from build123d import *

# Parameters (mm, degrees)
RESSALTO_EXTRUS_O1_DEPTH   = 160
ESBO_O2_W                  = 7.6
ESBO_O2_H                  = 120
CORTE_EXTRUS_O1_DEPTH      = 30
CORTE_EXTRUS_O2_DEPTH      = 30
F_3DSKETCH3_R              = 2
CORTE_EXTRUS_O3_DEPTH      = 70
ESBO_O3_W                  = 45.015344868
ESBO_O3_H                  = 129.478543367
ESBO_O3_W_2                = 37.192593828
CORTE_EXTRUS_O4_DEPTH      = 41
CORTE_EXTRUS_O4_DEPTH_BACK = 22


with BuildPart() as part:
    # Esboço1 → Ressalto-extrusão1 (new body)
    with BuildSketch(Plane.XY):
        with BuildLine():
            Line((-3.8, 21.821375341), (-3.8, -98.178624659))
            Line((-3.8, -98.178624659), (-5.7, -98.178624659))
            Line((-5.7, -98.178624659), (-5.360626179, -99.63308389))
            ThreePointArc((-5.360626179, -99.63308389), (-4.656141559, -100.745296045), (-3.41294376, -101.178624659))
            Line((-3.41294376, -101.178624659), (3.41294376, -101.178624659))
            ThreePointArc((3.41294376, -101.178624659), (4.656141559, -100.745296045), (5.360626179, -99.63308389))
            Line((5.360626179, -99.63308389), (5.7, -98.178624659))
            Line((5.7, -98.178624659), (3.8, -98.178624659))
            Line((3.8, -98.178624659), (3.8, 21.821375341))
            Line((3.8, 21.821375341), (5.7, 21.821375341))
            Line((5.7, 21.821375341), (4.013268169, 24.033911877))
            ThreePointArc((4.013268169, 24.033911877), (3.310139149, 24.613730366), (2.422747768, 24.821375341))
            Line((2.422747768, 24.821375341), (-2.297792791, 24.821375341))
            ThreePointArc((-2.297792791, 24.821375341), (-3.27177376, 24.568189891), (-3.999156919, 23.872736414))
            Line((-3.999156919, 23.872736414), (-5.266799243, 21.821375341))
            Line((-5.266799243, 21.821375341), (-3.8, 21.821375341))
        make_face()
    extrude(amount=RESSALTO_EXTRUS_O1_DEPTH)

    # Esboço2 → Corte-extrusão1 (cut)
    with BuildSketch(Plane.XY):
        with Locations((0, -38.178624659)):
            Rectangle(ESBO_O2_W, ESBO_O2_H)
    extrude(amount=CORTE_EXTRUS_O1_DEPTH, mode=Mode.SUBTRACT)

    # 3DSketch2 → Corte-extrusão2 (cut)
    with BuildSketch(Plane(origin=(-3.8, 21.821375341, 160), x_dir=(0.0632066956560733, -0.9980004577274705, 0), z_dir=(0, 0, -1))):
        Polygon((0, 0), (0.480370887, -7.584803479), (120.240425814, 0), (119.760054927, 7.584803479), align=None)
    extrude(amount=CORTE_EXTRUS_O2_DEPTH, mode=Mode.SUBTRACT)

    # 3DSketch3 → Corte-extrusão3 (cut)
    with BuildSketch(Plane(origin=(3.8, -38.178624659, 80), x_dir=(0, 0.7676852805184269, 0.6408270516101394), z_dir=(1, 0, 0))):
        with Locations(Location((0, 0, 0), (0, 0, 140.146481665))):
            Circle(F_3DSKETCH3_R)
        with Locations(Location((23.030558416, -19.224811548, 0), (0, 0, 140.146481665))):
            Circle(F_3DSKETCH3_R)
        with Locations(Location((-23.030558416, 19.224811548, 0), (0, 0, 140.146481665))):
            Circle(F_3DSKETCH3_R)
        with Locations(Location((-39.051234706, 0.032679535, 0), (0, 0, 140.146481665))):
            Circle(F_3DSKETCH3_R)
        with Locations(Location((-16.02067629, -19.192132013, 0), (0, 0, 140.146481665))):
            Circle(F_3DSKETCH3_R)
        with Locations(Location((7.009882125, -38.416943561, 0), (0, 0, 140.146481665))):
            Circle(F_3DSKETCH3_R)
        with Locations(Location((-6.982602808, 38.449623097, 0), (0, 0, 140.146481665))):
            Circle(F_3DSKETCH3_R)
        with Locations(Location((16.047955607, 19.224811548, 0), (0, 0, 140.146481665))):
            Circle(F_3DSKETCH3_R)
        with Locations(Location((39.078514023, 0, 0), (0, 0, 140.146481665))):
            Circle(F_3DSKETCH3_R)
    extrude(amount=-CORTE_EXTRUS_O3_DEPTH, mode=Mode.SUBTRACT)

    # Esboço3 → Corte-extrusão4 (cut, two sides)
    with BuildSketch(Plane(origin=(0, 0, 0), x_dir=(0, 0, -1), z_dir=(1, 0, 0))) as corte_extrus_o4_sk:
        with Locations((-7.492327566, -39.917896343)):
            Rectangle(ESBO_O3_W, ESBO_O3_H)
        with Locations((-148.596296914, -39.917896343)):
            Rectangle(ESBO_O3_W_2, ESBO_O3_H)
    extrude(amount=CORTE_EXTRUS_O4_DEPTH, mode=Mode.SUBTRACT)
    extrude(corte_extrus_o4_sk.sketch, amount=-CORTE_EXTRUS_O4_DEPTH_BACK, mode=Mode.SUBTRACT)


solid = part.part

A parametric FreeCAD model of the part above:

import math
import FreeCAD as App
import Part
import Sketcher
from FreeCAD import Vector


def add_polygon(sketch, points):
    """Adds a closed chain of lines whose ends are joined by coincident constraints."""
    first, n = sketch.GeometryCount, len(points)
    for a, b in zip(points, points[1:] + points[:1]):
        sketch.addGeometry(Part.LineSegment(App.Vector(*a, 0), App.Vector(*b, 0)), False)
    for i in range(n):
        sketch.addConstraint(Sketcher.Constraint("Coincident", first + i, 2, first + (i + 1) % n, 1))

doc = App.newDocument("Part")
params = doc.addObject("Spreadsheet::Sheet", "Params")
for row, (alias, value) in enumerate([
    ("sketch1_radius", "2 mm"),
    ("sketch1_height", "120 mm"),
    ("sketch1_width", "1.9 mm"),
    ("pad1_length", "160 mm"),
    ("sketch2_height", "120 mm"),
    ("sketch2_width", "7.6 mm"),
    ("pocket1_length", "30 mm"),
    ("sketch3_height", "120 mm"),
    ("sketch3_width", "7.6 mm"),
    ("pocket2_length", "30 mm"),
    ("sketch4_diameter", "4 mm"),
    ("pocket3_length", "70 mm"),
], start=1):
    params.set(f"A{row}", alias)
    params.set(f"B{row}", "=" + value)
    params.setAlias(f"B{row}", alias)

body = doc.addObject("PartDesign::Body", "Body")

sketch1 = body.newObject("Sketcher::SketchObject", "Sketch")
sketch1.AttachmentSupport = (doc.getObject("XY_Plane"), [""])
sketch1.MapMode = "FlatFace"
sketch1.addGeometry([
    Part.LineSegment(Vector(-3.8, 21.8, 0), Vector(-3.8, -98.2, 0)),
    Part.LineSegment(Vector(-3.8, -98.2, 0), Vector(-5.7, -98.2, 0)),
    Part.LineSegment(Vector(-5.7, -98.2, 0), Vector(-5.4, -99.6, 0)),
    Part.ArcOfCircle(Part.Circle(Vector(-3.4, -99.2, 0), Vector(0, 0, 1), 2), math.radians(-167), math.radians(-90)),
    Part.LineSegment(Vector(-3.4, -101.2, 0), Vector(3.4, -101.2, 0)),
    Part.ArcOfCircle(Part.Circle(Vector(3.4, -99.2, 0), Vector(0, 0, 1), 2), math.radians(-90), math.radians(-13)),
    Part.LineSegment(Vector(5.4, -99.6, 0), Vector(5.7, -98.2, 0)),
    Part.LineSegment(Vector(5.7, -98.2, 0), Vector(3.8, -98.2, 0)),
    Part.LineSegment(Vector(3.8, -98.2, 0), Vector(3.8, 21.8, 0)),
    Part.LineSegment(Vector(3.8, 21.8, 0), Vector(5.7, 21.8, 0)),
    Part.LineSegment(Vector(5.7, 21.8, 0), Vector(4, 24, 0)),
    Part.ArcOfCircle(Part.Circle(Vector(2.4, 22.8, 0), Vector(0, 0, 1), 2), math.radians(37), math.radians(90)),
    Part.LineSegment(Vector(2.4, 24.8, 0), Vector(-2.3, 24.8, 0)),
    Part.ArcOfCircle(Part.Circle(Vector(-2.3, 22.8, 0), Vector(0, 0, 1), 2), math.radians(90), math.radians(148)),
    Part.LineSegment(Vector(-4, 23.9, 0), Vector(-5.3, 21.8, 0)),
    Part.LineSegment(Vector(-5.3, 21.8, 0), Vector(-3.8, 21.8, 0)),
], False)
sketch1.addConstraint([
    Sketcher.Constraint("Coincident", 0, 2, 1, 1),
    Sketcher.Constraint("Coincident", 1, 2, 2, 1),
    Sketcher.Constraint("Tangent", 2, 2, 3, 1),
    Sketcher.Constraint("Tangent", 3, 2, 4, 1),
    Sketcher.Constraint("Tangent", 4, 2, 5, 1),
    Sketcher.Constraint("Tangent", 5, 2, 6, 1),
    Sketcher.Constraint("Coincident", 6, 2, 7, 1),
    Sketcher.Constraint("Coincident", 7, 2, 8, 1),
    Sketcher.Constraint("Coincident", 8, 2, 9, 1),
    Sketcher.Constraint("Coincident", 9, 2, 10, 1),
    Sketcher.Constraint("Tangent", 10, 2, 11, 1),
    Sketcher.Constraint("Tangent", 11, 2, 12, 1),
    Sketcher.Constraint("Tangent", 12, 2, 13, 1),
    Sketcher.Constraint("Tangent", 13, 2, 14, 1),
    Sketcher.Constraint("Coincident", 14, 2, 15, 1),
    Sketcher.Constraint("Coincident", 15, 2, 0, 1),
    Sketcher.Constraint("Vertical", 0),
    Sketcher.Constraint("Horizontal", 1),
    Sketcher.Constraint("Horizontal", 4),
    Sketcher.Constraint("Horizontal", 7),
    Sketcher.Constraint("Vertical", 8),
    Sketcher.Constraint("Horizontal", 9),
    Sketcher.Constraint("Horizontal", 12),
    Sketcher.Constraint("Horizontal", 15),
    Sketcher.Constraint("Equal", 3, 5),
    Sketcher.Constraint("Equal", 5, 11),
    Sketcher.Constraint("Equal", 11, 13),
    Sketcher.Constraint("Symmetric", 2, 2, 5, 2, -2),
    Sketcher.Constraint("Symmetric", 0, 2, 7, 2, -2),
    Sketcher.Constraint("Horizontal", 9, 2, 14, 2),
    Sketcher.Constraint("Vertical", 6, 2, 9, 2),
    Sketcher.Constraint("Radius", 3, 2.0),
    Sketcher.Constraint("DistanceY", 0, 2, 0, 1, 120.0),
    Sketcher.Constraint("DistanceX", 1, 2, 1, 1, 1.9),
    Sketcher.Constraint("DistanceY", 5, 3, 11, 3, 122.0),
    Sketcher.Constraint("DistanceY", 3, 3, 0, 2, 1.0),
    Sketcher.Constraint("DistanceX", 0, 2, -1, 1, 3.8),
    Sketcher.Constraint("DistanceX", 15, 1, 15, 2, 1.466799),
    Sketcher.Constraint("DistanceX", 12, 2, 12, 1, 4.720541),
    Sketcher.Constraint("Distance", 2, 1.493528),
    Sketcher.Constraint("Distance", 14, 2.411431),
    Sketcher.Constraint("DistanceY", -1, 1, 10, 2, 24.033912),
])
sketch1.setExpression("Constraints[31]", "Params.sketch1_radius")
sketch1.setExpression("Constraints[32]", "Params.sketch1_height")
sketch1.setExpression("Constraints[33]", "Params.sketch1_width")
pad1 = body.newObject("PartDesign::Pad", "Pad")
pad1.Profile = sketch1
pad1.setExpression("Length", "Params.pad1_length")

sketch2 = body.newObject("Sketcher::SketchObject", "Sketch001")
sketch2.AttachmentSupport = (doc.getObject("XY_Plane"), [""])
sketch2.MapMode = "FlatFace"
add_polygon(sketch2, [(-4, 22), (-4, -98), (4, -98), (4, 22)])
sketch2.addConstraint([
    Sketcher.Constraint("Vertical", 0),
    Sketcher.Constraint("Horizontal", 1),
    Sketcher.Constraint("Vertical", 2),
    Sketcher.Constraint("Horizontal", 3),
    Sketcher.Constraint("DistanceY", 0, 2, 0, 1, 120.0),
    Sketcher.Constraint("DistanceX", 1, 1, 1, 2, 7.6),
    Sketcher.Constraint("DistanceX", 0, 2, -1, 1, 3.8),
    Sketcher.Constraint("DistanceY", 0, 2, -1, 1, 98.178625),
])
sketch2.setExpression("Constraints[8]", "Params.sketch2_height")
sketch2.setExpression("Constraints[9]", "Params.sketch2_width")
pocket1 = body.newObject("PartDesign::Pocket", "Pocket")
pocket1.Profile = sketch2
pocket1.setExpression("Length", "Params.pocket1_length")
pocket1.Reversed = True

sketch3 = body.newObject("Sketcher::SketchObject", "Sketch002")
sketch3.AttachmentSupport = (doc.getObject("XY_Plane"), [""])
sketch3.MapMode = "FlatFace"
sketch3.AttachmentOffset = App.Placement(Vector(0, 0, 160), App.Rotation())
add_polygon(sketch3, [(-4, 22), (4, 22), (4, -98), (-4, -98)])
sketch3.addConstraint([
    Sketcher.Constraint("Horizontal", 0),
    Sketcher.Constraint("Vertical", 1),
    Sketcher.Constraint("Horizontal", 2),
    Sketcher.Constraint("Vertical", 3),
    Sketcher.Constraint("DistanceY", 1, 2, 1, 1, 120.0),
    Sketcher.Constraint("DistanceX", 0, 1, 0, 2, 7.6),
    Sketcher.Constraint("DistanceX", -1, 1, 0, 2, 3.8),
    Sketcher.Constraint("DistanceY", -1, 1, 0, 2, 21.821375),
])
sketch3.setExpression("Constraints[8]", "Params.sketch3_height")
sketch3.setExpression("Constraints[9]", "Params.sketch3_width")
pocket2 = body.newObject("PartDesign::Pocket", "Pocket001")
pocket2.Profile = sketch3
pocket2.setExpression("Length", "Params.pocket2_length")

sketch4 = body.newObject("Sketcher::SketchObject", "Sketch003")
sketch4.AttachmentSupport = (doc.getObject("YZ_Plane"), [""])
sketch4.MapMode = "FlatFace"
sketch4.AttachmentOffset = App.Placement(Vector(0, 0, 3.8), App.Rotation())
sketch4.addGeometry([
    Part.Circle(Vector(-38.2, 80, 0), Vector(0, 0, 1), 2),
    Part.Circle(Vector(-8.2, 80, 0), Vector(0, 0, 1), 2),
    Part.Circle(Vector(-68.2, 80, 0), Vector(0, 0, 1), 2),
    Part.Circle(Vector(-68.2, 55, 0), Vector(0, 0, 1), 2),
    Part.Circle(Vector(-38.2, 55, 0), Vector(0, 0, 1), 2),
    Part.Circle(Vector(-8.2, 55, 0), Vector(0, 0, 1), 2),
    Part.Circle(Vector(-68.2, 105, 0), Vector(0, 0, 1), 2),
    Part.Circle(Vector(-38.2, 105, 0), Vector(0, 0, 1), 2),
    Part.Circle(Vector(-8.2, 105, 0), Vector(0, 0, 1), 2),
], False)
sketch4.addConstraint([
    Sketcher.Constraint("Equal", 0, 1),
    Sketcher.Constraint("Equal", 1, 2),
    Sketcher.Constraint("Equal", 2, 3),
    Sketcher.Constraint("Equal", 3, 4),
    Sketcher.Constraint("Equal", 4, 5),
    Sketcher.Constraint("Equal", 5, 6),
    Sketcher.Constraint("Equal", 6, 7),
    Sketcher.Constraint("Equal", 7, 8),
    Sketcher.Constraint("Horizontal", 0, 3, 1, 3),
    Sketcher.Constraint("Horizontal", 1, 3, 2, 3),
    Sketcher.Constraint("Horizontal", 3, 3, 4, 3),
    Sketcher.Constraint("Horizontal", 4, 3, 5, 3),
    Sketcher.Constraint("Horizontal", 6, 3, 7, 3),
    Sketcher.Constraint("Horizontal", 7, 3, 8, 3),
    Sketcher.Constraint("Vertical", 2, 3, 3, 3),
    Sketcher.Constraint("Vertical", 0, 3, 4, 3),
    Sketcher.Constraint("Vertical", 1, 3, 5, 3),
    Sketcher.Constraint("Vertical", 3, 3, 6, 3),
    Sketcher.Constraint("Vertical", 4, 3, 7, 3),
    Sketcher.Constraint("Vertical", 5, 3, 8, 3),
    Sketcher.Constraint("Diameter", 0, 4.0),
    Sketcher.Constraint("DistanceY", -1, 1, 0, 3, 80.0),
    Sketcher.Constraint("DistanceY", -1, 1, 3, 3, 55.0),
    Sketcher.Constraint("DistanceX", 0, 3, 1, 3, 30.0),
    Sketcher.Constraint("DistanceX", 2, 3, 0, 3, 30.0),
    Sketcher.Constraint("DistanceY", -1, 1, 6, 3, 105.042569),
    Sketcher.Constraint("DistanceX", 0, 3, -1, 1, 38.178625),
])
sketch4.setExpression("Constraints[20]", "Params.sketch4_diameter")
pocket3 = body.newObject("PartDesign::Pocket", "Pocket002")
pocket3.Profile = sketch4
pocket3.setExpression("Length", "Params.pocket3_length")

sketch5 = body.newObject("Sketcher::SketchObject", "Sketch004")
sketch5.AttachmentSupport = (doc.getObject("YZ_Plane"), [""])
sketch5.MapMode = "FlatFace"
add_polygon(sketch5, [(25, 30), (-105, 30), (-105, -15), (25, -15)])
add_polygon(sketch5, [(25, 167), (-105, 167), (-105, 130), (25, 130)])
sketch5.addConstraint([
    Sketcher.Constraint("Horizontal", 0),
    Sketcher.Constraint("Vertical", 1),
    Sketcher.Constraint("Horizontal", 2),
    Sketcher.Constraint("Vertical", 3),
    Sketcher.Constraint("Horizontal", 4),
    Sketcher.Constraint("Vertical", 5),
    Sketcher.Constraint("Horizontal", 6),
    Sketcher.Constraint("Vertical", 7),
    Sketcher.Constraint("Vertical", 1, 2, 4, 2),
    Sketcher.Constraint("Vertical", 3, 2, 6, 2),
    Sketcher.Constraint("DistanceY", -1, 1, 0, 2, 30.0),
    Sketcher.Constraint("DistanceY", -1, 1, 5, 2, 130.0),
    Sketcher.Constraint("DistanceX", 0, 2, 0, 1, 129.478543),
    Sketcher.Constraint("DistanceY", 1, 2, 1, 1, 45.015345),
    Sketcher.Constraint("DistanceY", 5, 2, 5, 1, 37.192594),
    Sketcher.Constraint("DistanceX", 0, 2, -1, 1, 104.657168),
])
pocket4 = body.newObject("PartDesign::Pocket", "Pocket003")
pocket4.Profile = sketch5
pocket4.Type = "ThroughAll"
pocket4.Midplane = True

doc.recompute()
